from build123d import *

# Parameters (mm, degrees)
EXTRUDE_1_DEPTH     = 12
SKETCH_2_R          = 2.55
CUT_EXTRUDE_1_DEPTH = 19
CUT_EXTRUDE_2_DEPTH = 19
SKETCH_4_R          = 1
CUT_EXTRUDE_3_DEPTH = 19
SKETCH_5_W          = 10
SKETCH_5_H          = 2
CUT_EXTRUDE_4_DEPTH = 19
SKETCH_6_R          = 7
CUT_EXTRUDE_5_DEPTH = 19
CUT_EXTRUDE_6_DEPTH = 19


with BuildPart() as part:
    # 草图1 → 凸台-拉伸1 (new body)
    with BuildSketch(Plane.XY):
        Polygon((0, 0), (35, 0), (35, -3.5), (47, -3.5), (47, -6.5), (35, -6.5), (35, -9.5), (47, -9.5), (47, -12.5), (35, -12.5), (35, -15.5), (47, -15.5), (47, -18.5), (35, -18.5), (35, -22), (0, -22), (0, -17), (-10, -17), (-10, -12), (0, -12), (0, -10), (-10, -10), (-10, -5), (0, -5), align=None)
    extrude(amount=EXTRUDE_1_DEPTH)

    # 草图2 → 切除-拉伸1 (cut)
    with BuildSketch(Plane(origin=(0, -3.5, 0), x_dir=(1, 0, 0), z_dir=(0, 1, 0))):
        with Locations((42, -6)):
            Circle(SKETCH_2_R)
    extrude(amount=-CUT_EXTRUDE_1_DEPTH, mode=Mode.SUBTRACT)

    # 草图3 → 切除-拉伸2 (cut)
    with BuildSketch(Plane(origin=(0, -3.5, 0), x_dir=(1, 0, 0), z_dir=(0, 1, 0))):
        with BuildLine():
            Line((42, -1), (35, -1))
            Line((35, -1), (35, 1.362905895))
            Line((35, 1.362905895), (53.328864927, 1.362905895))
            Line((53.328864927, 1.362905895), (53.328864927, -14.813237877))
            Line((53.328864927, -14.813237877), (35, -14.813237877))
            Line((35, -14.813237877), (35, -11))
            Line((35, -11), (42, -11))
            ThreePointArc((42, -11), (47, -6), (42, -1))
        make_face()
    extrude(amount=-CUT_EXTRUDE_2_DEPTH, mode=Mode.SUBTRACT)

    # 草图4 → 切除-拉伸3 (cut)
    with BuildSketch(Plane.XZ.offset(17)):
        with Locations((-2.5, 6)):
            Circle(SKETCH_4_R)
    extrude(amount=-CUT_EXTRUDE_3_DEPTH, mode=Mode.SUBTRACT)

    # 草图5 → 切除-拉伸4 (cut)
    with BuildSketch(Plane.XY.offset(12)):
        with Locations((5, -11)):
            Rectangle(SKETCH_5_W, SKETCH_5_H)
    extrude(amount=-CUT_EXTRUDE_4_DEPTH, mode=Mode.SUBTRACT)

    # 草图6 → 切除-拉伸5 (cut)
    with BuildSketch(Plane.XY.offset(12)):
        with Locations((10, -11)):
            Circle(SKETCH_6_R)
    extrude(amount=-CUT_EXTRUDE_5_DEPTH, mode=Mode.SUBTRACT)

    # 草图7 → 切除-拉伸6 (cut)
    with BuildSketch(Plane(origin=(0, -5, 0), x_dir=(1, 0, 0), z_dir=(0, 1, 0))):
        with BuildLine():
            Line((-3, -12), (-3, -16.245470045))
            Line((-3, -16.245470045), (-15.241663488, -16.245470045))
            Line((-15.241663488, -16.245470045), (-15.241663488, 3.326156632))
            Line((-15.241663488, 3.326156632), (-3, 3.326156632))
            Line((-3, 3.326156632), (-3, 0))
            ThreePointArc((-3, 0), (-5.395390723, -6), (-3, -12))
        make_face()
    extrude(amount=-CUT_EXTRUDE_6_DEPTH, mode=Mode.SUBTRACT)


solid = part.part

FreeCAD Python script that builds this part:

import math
import FreeCAD as App
import Part
import Sketcher
from FreeCAD import Vector
Q = App.Units.Quantity


def add_polygon(sketch, points):
    """Adds a closed chain of lines whose ends are joined by coincident constraints."""
    first, n = sketch.GeometryCount, len(points)
    for a, b in zip(points, points[1:] + points[:1]):
        sketch.addGeometry(Part.LineSegment(App.Vector(*a, 0), App.Vector(*b, 0)), False)
    for i in range(n):
        sketch.addConstraint(Sketcher.Constraint("Coincident", first + i, 2, first + (i + 1) % n, 1))

doc = App.newDocument("Part")
params = doc.addObject("Spreadsheet::Sheet", "Params")
for row, (alias, value) in enumerate([
    ("sketch1_width", "35 mm"),
    ("sketch1_width2", "10 mm"),
    ("sketch1_width3", "12 mm"),
    ("sketch1_height", "5 mm"),
    ("sketch1_height2", "2 mm"),
    ("pad1_length", "12 mm"),
    ("sketch2_diameter", "5.1 mm"),
    ("pocket1_length", "19 mm"),
    ("sketch3_radius", "5 mm"),
    ("sketch3_width", "7 mm"),
    ("pocket2_length", "19 mm"),
    ("sketch4_diameter", "2 mm"),
    ("pocket3_length", "19 mm"),
    ("sketch5_width", "10 mm"),
    ("sketch5_height", "2 mm"),
    ("pocket4_length", "19 mm"),
    ("sketch6_diameter", "14 mm"),
    ("pocket5_length", "19 mm"),
    ("pocket6_length", "19 mm"),
], start=1):
    params.set(f"A{row}", alias)
    params.set(f"B{row}", "=" + value)
    params.setAlias(f"B{row}", alias)

body = doc.addObject("PartDesign::Body", "Body")

# Sketch on XY plane
sketch1 = body.newObject("Sketcher::SketchObject", "Sketch")
sketch1.AttachmentSupport = (doc.getObject("XY_Plane"), [""])
sketch1.MapMode = "FlatFace"
add_polygon(sketch1, [(35, 0), (0, 0), (0, -5), (-10, -5), (-10, -10), (0, -10), (0, -12), (-10, -12), (-10, -17), (0, -17), (0, -22), (35, -22), (35, -18.5), (47, -18.5), (47, -15.5), (35, -15.5), (35, -12.5), (47, -12.5), (47, -9.5), (35, -9.5), (35, -6.5), (47, -6.5), (47, -3.5), (35, -3.5)])  # lines 0-23
sketch1.addConstraint(Sketcher.Constraint("Horizontal", 0))
sketch1.addConstraint(Sketcher.Constraint("Vertical", 1))
sketch1.addConstraint(Sketcher.Constraint("Horizontal", 2))
sketch1.addConstraint(Sketcher.Constraint("Vertical", 3))
sketch1.addConstraint(Sketcher.Constraint("Horizontal", 4))
sketch1.addConstraint(Sketcher.Constraint("Vertical", 5))
sketch1.addConstraint(Sketcher.Constraint("Horizontal", 6))
sketch1.addConstraint(Sketcher.Constraint("Vertical", 7))
sketch1.addConstraint(Sketcher.Constraint("Horizontal", 8))
sketch1.addConstraint(Sketcher.Constraint("Vertical", 9))
sketch1.addConstraint(Sketcher.Constraint("Horizontal", 10))
sketch1.addConstraint(Sketcher.Constraint("Vertical", 11))
sketch1.addConstraint(Sketcher.Constraint("Horizontal", 12))
sketch1.addConstraint(Sketcher.Constraint("Vertical", 13))
sketch1.addConstraint(Sketcher.Constraint("Horizontal", 14))
sketch1.addConstraint(Sketcher.Constraint("Vertical", 15))
sketch1.addConstraint(Sketcher.Constraint("Horizontal", 16))
sketch1.addConstraint(Sketcher.Constraint("Vertical", 17))
sketch1.addConstraint(Sketcher.Constraint("Horizontal", 18))
sketch1.addConstraint(Sketcher.Constraint("Vertical", 19))
sketch1.addConstraint(Sketcher.Constraint("Horizontal", 20))
sketch1.addConstraint(Sketcher.Constraint("Vertical", 21))
sketch1.addConstraint(Sketcher.Constraint("Horizontal", 22))
sketch1.addConstraint(Sketcher.Constraint("Vertical", 23))
sketch1.addConstraint(Sketcher.Constraint("Coincident", 0, 2, -1, 1))
sketch1.addConstraint(Sketcher.Constraint("PointOnObject", 4, 2, -2))
sketch1.addConstraint(Sketcher.Constraint("PointOnObject", 8, 2, -2))
sketch1.addConstraint(Sketcher.Constraint("Vertical", 3, 2, 6, 2))
sketch1.addConstraint(Sketcher.Constraint("Vertical", 11, 2, 14, 2))
sketch1.addConstraint(Sketcher.Constraint("Vertical", 13, 2, 16, 2))
sketch1.addConstraint(Sketcher.Constraint("Vertical", 15, 2, 18, 2))
sketch1.addConstraint(Sketcher.Constraint("Vertical", 17, 2, 20, 2))
sketch1.addConstraint(Sketcher.Constraint("Vertical", 19, 2, 22, 2))
sketch1.addConstraint(Sketcher.Constraint("Equal", 1, 3))
sketch1.addConstraint(Sketcher.Constraint("Equal", 3, 7))
sketch1.addConstraint(Sketcher.Constraint("Equal", 7, 9))
sketch1.addConstraint(Sketcher.Constraint("Equal", 13, 15))
sketch1.addConstraint(Sketcher.Constraint("Equal", 15, 17))
sketch1.addConstraint(Sketcher.Constraint("Equal", 17, 19))
sketch1.addConstraint(Sketcher.Constraint("Equal", 19, 21))
sketch1.addConstraint(Sketcher.Constraint("Equal", 11, 23))
sketch1.addConstraint(Sketcher.Constraint("DistanceX", 0, 2, 0, 1, Q("35 mm")))
sketch1.addConstraint(Sketcher.Constraint("DistanceX", 2, 2, 2, 1, Q("10 mm")))
sketch1.addConstraint(Sketcher.Constraint("DistanceX", 12, 1, 12, 2, Q("12 mm")))
sketch1.addConstraint(Sketcher.Constraint("DistanceY", 1, 2, 1, 1, Q("5 mm")))
sketch1.addConstraint(Sketcher.Constraint("DistanceY", 5, 2, 5, 1, Q("2 mm")))
sketch1.addConstraint(Sketcher.Constraint("DistanceY", 13, 1, 13, 2, Q("3 mm")))
sketch1.setExpression("Constraints[65]", "Params.sketch1_width")
sketch1.setExpression("Constraints[66]", "Params.sketch1_width2")
sketch1.setExpression("Constraints[67]", "Params.sketch1_width3")
sketch1.setExpression("Constraints[68]", "Params.sketch1_height")
sketch1.setExpression("Constraints[69]", "Params.sketch1_height2")
pad1 = body.newObject("PartDesign::Pad", "Pad")
pad1.Profile = sketch1
pad1.setExpression("Length", "Params.pad1_length")

# Sketch on XZ plane
sketch2 = body.newObject("Sketcher::SketchObject", "Sketch001")
sketch2.AttachmentSupport = (doc.getObject("XZ_Plane"), [""])
sketch2.MapMode = "FlatFace"
sketch2.AttachmentOffset = App.Placement(Vector(0, 0, 3.5), App.Rotation())
sketch2.addGeometry(Part.Circle(Vector(42, 6, 0), Vector(0, 0, 1), 2.5), False)
sketch2.addConstraint(Sketcher.Constraint("Diameter", 0, Q("5.1 mm")))
sketch2.addConstraint(Sketcher.Constraint("DistanceX", -1, 1, 0, 3, Q("42 mm")))
sketch2.addConstraint(Sketcher.Constraint("DistanceY", -1, 1, 0, 3, Q("6 mm")))
sketch2.setExpression("Constraints[0]", "Params.sketch2_diameter")
pocket1 = body.newObject("PartDesign::Pocket", "Pocket")
pocket1.Profile = sketch2
pocket1.setExpression("Length", "Params.pocket1_length")
pocket1.Reversed = True

# Sketch on XZ plane
sketch3 = body.newObject("Sketcher::SketchObject", "Sketch002")
sketch3.AttachmentSupport = (doc.getObject("XZ_Plane"), [""])
sketch3.MapMode = "FlatFace"
sketch3.AttachmentOffset = App.Placement(Vector(0, 0, 3.5), App.Rotation())
sketch3.addGeometry(Part.LineSegment(Vector(35, 1, 0), Vector(42, 1, 0)), False)
sketch3.addGeometry(Part.ArcOfCircle(Part.Circle(Vector(42, 6, 0), Vector(0, 0, 1), 5), math.radians(-90), math.radians(90)), False)
sketch3.addGeometry(Part.LineSegment(Vector(42, 11, 0), Vector(35, 11, 0)), False)
sketch3.addGeometry(Part.LineSegment(Vector(35, 11, 0), Vector(35, 14.8, 0)), False)
sketch3.addGeometry(Part.LineSegment(Vector(35, 14.8, 0), Vector(53.3, 14.8, 0)), False)
sketch3.addGeometry(Part.LineSegment(Vector(53.3, 14.8, 0), Vector(53.3, -1.4, 0)), False)
sketch3.addGeometry(Part.LineSegment(Vector(53.3, -1.4, 0), Vector(35, -1.4, 0)), False)
sketch3.addGeometry(Part.LineSegment(Vector(35, -1.4, 0), Vector(35, 1, 0)), False)
sketch3.addConstraint(Sketcher.Constraint("Tangent", 0, 2, 1, 1))
sketch3.addConstraint(Sketcher.Constraint("Tangent", 1, 2, 2, 1))
sketch3.addConstraint(Sketcher.Constraint("Coincident", 2, 2, 3, 1))
sketch3.addConstraint(Sketcher.Constraint("Coincident", 3, 2, 4, 1))
sketch3.addConstraint(Sketcher.Constraint("Coincident", 4, 2, 5, 1))
sketch3.addConstraint(Sketcher.Constraint("Coincident", 5, 2, 6, 1))
sketch3.addConstraint(Sketcher.Constraint("Coincident", 6, 2, 7, 1))
sketch3.addConstraint(Sketcher.Constraint("Coincident", 7, 2, 0, 1))
sketch3.addConstraint(Sketcher.Constraint("Horizontal", 0))
sketch3.addConstraint(Sketcher.Constraint("Horizontal", 2))
sketch3.addConstraint(Sketcher.Constraint("Vertical", 3))
sketch3.addConstraint(Sketcher.Constraint("Horizontal", 4))
sketch3.addConstraint(Sketcher.Constraint("Vertical", 5))
sketch3.addConstraint(Sketcher.Constraint("Horizontal", 6))
sketch3.addConstraint(Sketcher.Constraint("Vertical", 7))
sketch3.addConstraint(Sketcher.Constraint("Vertical", 3, 2, 6, 2))
sketch3.addConstraint(Sketcher.Constraint("Radius", 1, Q("5 mm")))
sketch3.addConstraint(Sketcher.Constraint("DistanceX", 0, 1, 0, 2, Q("7 mm")))
sketch3.addConstraint(Sketcher.Constraint("DistanceX", -1, 1, 1, 3, Q("42 mm")))
sketch3.addConstraint(Sketcher.Constraint("DistanceY", -1, 1, 1, 3, Q("6 mm")))
sketch3.addConstraint(Sketcher.Constraint("DistanceX", 4, 1, 4, 2, Q("18.328865 mm")))
sketch3.addConstraint(Sketcher.Constraint("DistanceY", 3, 1, 3, 2, Q("3.813238 mm")))
sketch3.addConstraint(Sketcher.Constraint("DistanceY", 5, 2, 5, 1, Q("16.176144 mm")))
sketch3.setExpression("Constraints[16]", "Params.sketch3_radius")
sketch3.setExpression("Constraints[17]", "Params.sketch3_width")
pocket2 = body.newObject("PartDesign::Pocket", "Pocket001")
pocket2.Profile = sketch3
pocket2.setExpression("Length", "Params.pocket2_length")
pocket2.Reversed = True

# Sketch on XZ plane
sketch4 = body.newObject("Sketcher::SketchObject", "Sketch003")
sketch4.AttachmentSupport = (doc.getObject("XZ_Plane"), [""])
sketch4.MapMode = "FlatFace"
sketch4.AttachmentOffset = App.Placement(Vector(0, 0, 17), App.Rotation())
sketch4.addGeometry(Part.Circle(Vector(-2.5, 6, 0), Vector(0, 0, 1), 1), False)
sketch4.addConstraint(Sketcher.Constraint("Diameter", 0, Q("2 mm")))
sketch4.addConstraint(Sketcher.Constraint("DistanceY", -1, 1, 0, 3, Q("6 mm")))
sketch4.addConstraint(Sketcher.Constraint("DistanceX", 0, 3, -1, 1, Q("2.5 mm")))
sketch4.setExpression("Constraints[0]", "Params.sketch4_diameter")
pocket3 = body.newObject("PartDesign::Pocket", "Pocket002")
pocket3.Profile = sketch4
pocket3.setExpression("Length", "Params.pocket3_length")

# Sketch on XY plane
sketch5 = body.newObject("Sketcher::SketchObject", "Sketch004")
sketch5.AttachmentSupport = (doc.getObject("XY_Plane"), [""])
sketch5.MapMode = "FlatFace"
sketch5.AttachmentOffset = App.Placement(Vector(0, 0, 12), App.Rotation())
add_polygon(sketch5, [(0, -10), (0, -12), (10, -12), (10, -10)])  # lines 0-3
sketch5.addConstraint(Sketcher.Constraint("Vertical", 0))
sketch5.addConstraint(Sketcher.Constraint("Horizontal", 1))
sketch5.addConstraint(Sketcher.Constraint("Vertical", 2))
sketch5.addConstraint(Sketcher.Constraint("Horizontal", 3))
sketch5.addConstraint(Sketcher.Constraint("PointOnObject", 0, 2, -2))
sketch5.addConstraint(Sketcher.Constraint("DistanceX", 1, 1, 1, 2, Q("10 mm")))
sketch5.addConstraint(Sketcher.Constraint("DistanceY", 0, 2, 0, 1, Q("2 mm")))
sketch5.addConstraint(Sketcher.Constraint("DistanceY", 0, 2, -1, 1, Q("12 mm")))
sketch5.setExpression("Constraints[9]", "Params.sketch5_width")
sketch5.setExpression("Constraints[10]", "Params.sketch5_height")
pocket4 = body.newObject("PartDesign::Pocket", "Pocket003")
pocket4.Profile = sketch5
pocket4.setExpression("Length", "Params.pocket4_length")

# Sketch on XY plane
sketch6 = body.newObject("Sketcher::SketchObject", "Sketch005")
sketch6.AttachmentSupport = (doc.getObject("XY_Plane"), [""])
sketch6.MapMode = "FlatFace"
sketch6.AttachmentOffset = App.Placement(Vector(0, 0, 12), App.Rotation())
sketch6.addGeometry(Part.Circle(Vector(10, -11, 0), Vector(0, 0, 1), 7), False)
sketch6.addConstraint(Sketcher.Constraint("Diameter", 0, Q("14 mm")))
sketch6.addConstraint(Sketcher.Constraint("DistanceX", -1, 1, 0, 3, Q("10 mm")))
sketch6.addConstraint(Sketcher.Constraint("DistanceY", 0, 3, -1, 1, Q("11 mm")))
sketch6.setExpression("Constraints[0]", "Params.sketch6_diameter")
pocket5 = body.newObject("PartDesign::Pocket", "Pocket004")
pocket5.Profile = sketch6
pocket5.setExpression("Length", "Params.pocket5_length")

# Sketch on XZ plane
sketch7 = body.newObject("Sketcher::SketchObject", "Sketch006")
sketch7.AttachmentSupport = (doc.getObject("XZ_Plane"), [""])
sketch7.MapMode = "FlatFace"
sketch7.AttachmentOffset = App.Placement(Vector(0, 0, 5), App.Rotation())
sketch7.addGeometry(Part.LineSegment(Vector(-3, 16.2, 0), Vector(-3, 12, 0)), False)
sketch7.addGeometry(Part.ArcOfCircle(Part.Circle(Vector(3.3, 6, 0), Vector(0, 0, 1), 8.7), math.radians(136), math.radians(224)), False)
sketch7.addGeometry(Part.LineSegment(Vector(-3, 0, 0), Vector(-3, -3.3, 0)), False)
sketch7.addGeometry(Part.LineSegment(Vector(-3, -3.3, 0), Vector(-15.2, -3.3, 0)), False)
sketch7.addGeometry(Part.LineSegment(Vector(-15.2, -3.3, 0), Vector(-15.2, 16.2, 0)), False)
sketch7.addGeometry(Part.LineSegment(Vector(-15.2, 16.2, 0), Vector(-3, 16.2, 0)), False)
sketch7.addConstraint(Sketcher.Constraint("Coincident", 0, 2, 1, 1))
sketch7.addConstraint(Sketcher.Constraint("Coincident", 1, 2, 2, 1))
sketch7.addConstraint(Sketcher.Constraint("Coincident", 2, 2, 3, 1))
sketch7.addConstraint(Sketcher.Constraint("Coincident", 3, 2, 4, 1))
sketch7.addConstraint(Sketcher.Constraint("Coincident", 4, 2, 5, 1))
sketch7.addConstraint(Sketcher.Constraint("Coincident", 5, 2, 0, 1))
sketch7.addConstraint(Sketcher.Constraint("Vertical", 0))
sketch7.addConstraint(Sketcher.Constraint("Vertical", 2))
sketch7.addConstraint(Sketcher.Constraint("Horizontal", 3))
sketch7.addConstraint(Sketcher.Constraint("Vertical", 4))
sketch7.addConstraint(Sketcher.Constraint("Horizontal", 5))
sketch7.addConstraint(Sketcher.Constraint("PointOnObject", 1, 2, -1))
sketch7.addConstraint(Sketcher.Constraint("Vertical", 0, 2, 1, 2))
sketch7.addConstraint(Sketcher.Constraint("DistanceY", -1, 1, 1, 3, Q("6 mm")))
sketch7.addConstraint(Sketcher.Constraint("DistanceX", 0, 2, -1, 1, Q("3 mm")))
sketch7.addConstraint(Sketcher.Constraint("Radius", 1, Q("8.712127 mm")))
sketch7.addConstraint(Sketcher.Constraint("DistanceY", 0, 2, 0, 1, Q("4.24547 mm")))
sketch7.addConstraint(Sketcher.Constraint("DistanceX", 3, 2, 1, 3, Q("18.5584 mm")))
sketch7.addConstraint(Sketcher.Constraint("DistanceY", 2, 2, 2, 1, Q("3.326157 mm")))
pocket6 = body.newObject("PartDesign::Pocket", "Pocket005")
pocket6.Profile = sketch7
pocket6.setExpression("Length", "Params.pocket6_length")
pocket6.Reversed = True

doc.recompute()
